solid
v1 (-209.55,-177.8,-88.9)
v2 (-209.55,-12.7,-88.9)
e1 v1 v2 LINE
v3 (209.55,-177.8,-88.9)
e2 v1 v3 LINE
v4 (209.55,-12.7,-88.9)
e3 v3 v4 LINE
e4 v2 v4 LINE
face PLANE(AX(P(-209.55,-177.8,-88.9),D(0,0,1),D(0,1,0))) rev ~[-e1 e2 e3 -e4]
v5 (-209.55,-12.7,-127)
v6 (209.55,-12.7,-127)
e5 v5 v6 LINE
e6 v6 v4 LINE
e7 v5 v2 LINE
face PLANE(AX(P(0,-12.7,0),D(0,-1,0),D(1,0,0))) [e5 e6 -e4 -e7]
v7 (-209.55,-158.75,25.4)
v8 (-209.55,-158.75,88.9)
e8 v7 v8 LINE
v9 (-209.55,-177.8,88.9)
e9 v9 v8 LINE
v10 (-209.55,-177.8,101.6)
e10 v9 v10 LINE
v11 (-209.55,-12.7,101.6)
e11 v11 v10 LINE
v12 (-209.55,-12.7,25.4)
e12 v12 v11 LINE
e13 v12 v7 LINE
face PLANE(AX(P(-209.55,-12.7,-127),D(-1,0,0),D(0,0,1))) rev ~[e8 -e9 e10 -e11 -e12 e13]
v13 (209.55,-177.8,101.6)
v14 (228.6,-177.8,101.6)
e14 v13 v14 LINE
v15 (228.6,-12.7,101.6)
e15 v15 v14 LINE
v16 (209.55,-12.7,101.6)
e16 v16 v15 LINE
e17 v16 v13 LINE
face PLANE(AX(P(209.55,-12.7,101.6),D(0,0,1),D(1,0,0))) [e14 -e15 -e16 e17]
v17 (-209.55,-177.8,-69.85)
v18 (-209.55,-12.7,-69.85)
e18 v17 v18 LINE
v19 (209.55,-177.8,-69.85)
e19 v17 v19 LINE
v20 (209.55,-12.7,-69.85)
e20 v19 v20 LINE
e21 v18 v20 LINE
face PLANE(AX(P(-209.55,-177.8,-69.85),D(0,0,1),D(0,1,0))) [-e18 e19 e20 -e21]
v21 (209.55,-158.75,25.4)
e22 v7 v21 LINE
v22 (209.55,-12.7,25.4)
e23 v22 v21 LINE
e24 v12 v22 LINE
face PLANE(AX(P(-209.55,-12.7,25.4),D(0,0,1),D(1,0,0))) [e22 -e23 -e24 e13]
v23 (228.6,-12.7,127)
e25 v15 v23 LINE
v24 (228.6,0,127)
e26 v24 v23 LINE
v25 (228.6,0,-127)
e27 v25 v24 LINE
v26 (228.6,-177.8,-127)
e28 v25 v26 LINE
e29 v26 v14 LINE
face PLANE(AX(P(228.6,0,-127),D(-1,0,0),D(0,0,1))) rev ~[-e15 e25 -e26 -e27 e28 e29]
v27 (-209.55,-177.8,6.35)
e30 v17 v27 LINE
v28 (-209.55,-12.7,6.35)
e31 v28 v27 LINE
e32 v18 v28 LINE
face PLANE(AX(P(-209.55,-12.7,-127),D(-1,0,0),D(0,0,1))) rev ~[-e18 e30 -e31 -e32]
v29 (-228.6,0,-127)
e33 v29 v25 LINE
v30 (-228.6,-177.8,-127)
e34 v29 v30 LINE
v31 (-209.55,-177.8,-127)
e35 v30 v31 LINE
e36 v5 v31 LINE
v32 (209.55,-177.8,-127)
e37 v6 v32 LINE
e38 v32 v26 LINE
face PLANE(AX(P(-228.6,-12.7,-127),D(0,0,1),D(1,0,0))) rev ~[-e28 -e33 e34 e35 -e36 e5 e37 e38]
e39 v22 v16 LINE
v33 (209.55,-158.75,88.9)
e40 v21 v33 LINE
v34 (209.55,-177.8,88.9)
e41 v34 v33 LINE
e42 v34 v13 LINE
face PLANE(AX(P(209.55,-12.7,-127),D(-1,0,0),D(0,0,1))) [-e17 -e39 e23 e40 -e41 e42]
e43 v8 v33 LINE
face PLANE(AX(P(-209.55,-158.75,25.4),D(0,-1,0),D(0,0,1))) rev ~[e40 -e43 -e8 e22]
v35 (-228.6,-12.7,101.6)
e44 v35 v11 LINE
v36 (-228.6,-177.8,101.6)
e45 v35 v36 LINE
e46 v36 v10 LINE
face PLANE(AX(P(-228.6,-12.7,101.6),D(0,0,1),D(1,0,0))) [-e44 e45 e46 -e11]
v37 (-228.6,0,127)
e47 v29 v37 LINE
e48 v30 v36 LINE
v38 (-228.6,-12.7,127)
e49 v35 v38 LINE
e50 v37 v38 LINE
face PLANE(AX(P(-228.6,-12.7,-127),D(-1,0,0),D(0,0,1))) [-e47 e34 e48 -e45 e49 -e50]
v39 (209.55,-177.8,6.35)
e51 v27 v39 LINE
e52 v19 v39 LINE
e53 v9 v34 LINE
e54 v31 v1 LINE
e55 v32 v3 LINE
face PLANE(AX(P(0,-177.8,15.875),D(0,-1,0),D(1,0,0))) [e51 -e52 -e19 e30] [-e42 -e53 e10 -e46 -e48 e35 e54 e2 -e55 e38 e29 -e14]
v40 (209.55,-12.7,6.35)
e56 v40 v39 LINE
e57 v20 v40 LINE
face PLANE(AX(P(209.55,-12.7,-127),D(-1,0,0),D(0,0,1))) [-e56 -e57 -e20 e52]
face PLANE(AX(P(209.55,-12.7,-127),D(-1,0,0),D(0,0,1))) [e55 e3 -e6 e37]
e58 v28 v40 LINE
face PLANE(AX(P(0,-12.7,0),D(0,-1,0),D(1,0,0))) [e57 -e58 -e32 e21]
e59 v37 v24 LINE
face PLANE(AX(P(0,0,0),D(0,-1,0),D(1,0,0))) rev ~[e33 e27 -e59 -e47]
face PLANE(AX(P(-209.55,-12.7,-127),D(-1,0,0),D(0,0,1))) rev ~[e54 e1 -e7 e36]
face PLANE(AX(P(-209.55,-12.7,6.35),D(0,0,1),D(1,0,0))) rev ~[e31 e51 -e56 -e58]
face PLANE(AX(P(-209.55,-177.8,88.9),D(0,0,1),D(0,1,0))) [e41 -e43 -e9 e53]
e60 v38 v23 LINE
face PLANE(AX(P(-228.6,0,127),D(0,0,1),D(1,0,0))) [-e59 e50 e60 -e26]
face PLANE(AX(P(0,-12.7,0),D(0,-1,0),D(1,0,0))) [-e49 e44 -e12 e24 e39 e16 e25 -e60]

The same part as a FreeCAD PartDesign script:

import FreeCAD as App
import Part
import Sketcher
from FreeCAD import Vector
Q = App.Units.Quantity


def add_polygon(sketch, points):
    """Adds a closed chain of lines whose ends are joined by coincident constraints."""
    first, n = sketch.GeometryCount, len(points)
    for a, b in zip(points, points[1:] + points[:1]):
        sketch.addGeometry(Part.LineSegment(App.Vector(*a, 0), App.Vector(*b, 0)), False)
    for i in range(n):
        sketch.addConstraint(Sketcher.Constraint("Coincident", first + i, 2, first + (i + 1) % n, 1))

doc = App.newDocument("Part")
params = doc.addObject("Spreadsheet::Sheet", "Params")
for row, (alias, value) in enumerate([
    ("sketch1_width", "18 in"),
    ("sketch1_height", "10 in"),
    ("pad1_length", "0.5 in"),
    ("sketch2_height", "9 in"),
    ("sketch2_width", "0.75 in"),
    ("pad2_length", "6.5 in"),
    ("sketch3_height", "2.5 in"),
    ("sketch3_width", "0.75 in"),
    ("sketch4_width", "16.5 in"),
    ("sketch4_height", "0.75 in"),
    ("pad4_length", "6.5 in"),
    ("sketch5_width", "6.5 in"),
    ("sketch5_height", "0.75 in"),
], start=1):
    params.set(f"A{row}", alias)
    params.set(f"B{row}", "=" + value)
    params.setAlias(f"B{row}", alias)

body = doc.addObject("PartDesign::Body", "Body")

# Sketch on XZ plane
sketch1 = body.newObject("Sketcher::SketchObject", "Sketch")
sketch1.AttachmentSupport = (doc.getObject("XZ_Plane"), [""])
sketch1.MapMode = "FlatFace"
add_polygon(sketch1, [(-229, 127), (-229, -127), (229, -127), (229, 127)])  # lines 0-3
sketch1.addConstraint(Sketcher.Constraint("Vertical", 0))
sketch1.addConstraint(Sketcher.Constraint("Horizontal", 1))
sketch1.addConstraint(Sketcher.Constraint("Vertical", 2))
sketch1.addConstraint(Sketcher.Constraint("Horizontal", 3))
sketch1.addConstraint(Sketcher.Constraint("Symmetric", 0, 2, 2, 2, -1, 1))
sketch1.addConstraint(Sketcher.Constraint("DistanceX", 1, 1, 1, 2, Q("18 in")))
sketch1.addConstraint(Sketcher.Constraint("DistanceY", 0, 2, 0, 1, Q("10 in")))
sketch1.setExpression("Constraints[9]", "Params.sketch1_width")
sketch1.setExpression("Constraints[10]", "Params.sketch1_height")
pad1 = body.newObject("PartDesign::Pad", "Pad")
pad1.Profile = sketch1
pad1.setExpression("Length", "Params.pad1_length")

# Sketch on XZ plane
sketch2 = body.newObject("Sketcher::SketchObject", "Sketch001")
sketch2.AttachmentSupport = (doc.getObject("XZ_Plane"), [""])
sketch2.MapMode = "FlatFace"
sketch2.AttachmentOffset = App.Placement(Vector(0, 0, 0.5 * 25.4), App.Rotation())
add_polygon(sketch2, [(-229, 102), (-229, -127), (-210, -127), (-210, 102)])  # lines 0-3
add_polygon(sketch2, [(210, 102), (210, -127), (229, -127), (229, 102)])  # lines 4-7
sketch2.addConstraint(Sketcher.Constraint("Vertical", 0))
sketch2.addConstraint(Sketcher.Constraint("Horizontal", 1))
sketch2.addConstraint(Sketcher.Constraint("Vertical", 2))
sketch2.addConstraint(Sketcher.Constraint("Horizontal", 3))
sketch2.addConstraint(Sketcher.Constraint("Vertical", 4))
sketch2.addConstraint(Sketcher.Constraint("Horizontal", 5))
sketch2.addConstraint(Sketcher.Constraint("Vertical", 6))
sketch2.addConstraint(Sketcher.Constraint("Horizontal", 7))
sketch2.addConstraint(Sketcher.Constraint("Symmetric", 1, 2, 4, 2, -2))
sketch2.addConstraint(Sketcher.Constraint("Symmetric", 3, 2, 6, 2, -2))
sketch2.addConstraint(Sketcher.Constraint("DistanceY", 0, 2, 0, 1, Q("9 in")))
sketch2.addConstraint(Sketcher.Constraint("DistanceX", 0, 2, -1, 1, Q("9 in")))
sketch2.addConstraint(Sketcher.Constraint("DistanceY", 0, 2, -1, 1, Q("5 in")))
sketch2.addConstraint(Sketcher.Constraint("DistanceX", 1, 1, 1, 2, Q("0.75 in")))
sketch2.setExpression("Constraints[18]", "Params.sketch2_height")
sketch2.setExpression("Constraints[21]", "Params.sketch2_width")
pad2 = body.newObject("PartDesign::Pad", "Pad001")
pad2.Profile = sketch2
pad2.setExpression("Length", "Params.pad2_length")

# Sketch on YZ plane
sketch3 = body.newObject("Sketcher::SketchObject", "Sketch002")
sketch3.AttachmentSupport = (doc.getObject("YZ_Plane"), [""])
sketch3.MapMode = "FlatFace"
sketch3.AttachmentOffset = App.Placement(Vector(0, 0, -8.25 * 25.4), App.Rotation())
add_polygon(sketch3, [(-178, 89), (-178, 25), (-159, 25), (-159, 89)])  # lines 0-3
sketch3.addConstraint(Sketcher.Constraint("Vertical", 0))
sketch3.addConstraint(Sketcher.Constraint("Horizontal", 1))
sketch3.addConstraint(Sketcher.Constraint("Vertical", 2))
sketch3.addConstraint(Sketcher.Constraint("Horizontal", 3))
sketch3.addConstraint(Sketcher.Constraint("DistanceY", 0, 2, 0, 1, Q("2.5 in")))
sketch3.addConstraint(Sketcher.Constraint("DistanceX", 0, 2, -1, 1, Q("7 in")))
sketch3.addConstraint(Sketcher.Constraint("DistanceY", -1, 1, 0, 2, Q("1 in")))
sketch3.addConstraint(Sketcher.Constraint("DistanceX", 1, 1, 1, 2, Q("0.75 in")))
sketch3.setExpression("Constraints[8]", "Params.sketch3_height")
sketch3.setExpression("Constraints[11]", "Params.sketch3_width")
pad3 = body.newObject("PartDesign::Pad", "Pad002")
pad3.Profile = sketch3
pad3.Type = "UpToLast"

# Sketch on XZ plane
sketch4 = body.newObject("Sketcher::SketchObject", "Sketch003")
sketch4.AttachmentSupport = (doc.getObject("XZ_Plane"), [""])
sketch4.MapMode = "FlatFace"
sketch4.AttachmentOffset = App.Placement(Vector(0, 0, 0.5 * 25.4), App.Rotation())
add_polygon(sketch4, [(-210, 25), (-210, 6), (210, 6), (210, 25)])  # lines 0-3
sketch4.addConstraint(Sketcher.Constraint("Vertical", 0))
sketch4.addConstraint(Sketcher.Constraint("Horizontal", 1))
sketch4.addConstraint(Sketcher.Constraint("Vertical", 2))
sketch4.addConstraint(Sketcher.Constraint("Horizontal", 3))
sketch4.addConstraint(Sketcher.Constraint("DistanceX", 1, 1, 1, 2, Q("16.5 in")))
sketch4.addConstraint(Sketcher.Constraint("DistanceY", -1, 1, 2, 2, Q("1 in")))
sketch4.addConstraint(Sketcher.Constraint("DistanceY", 0, 2, 0, 1, Q("0.75 in")))
sketch4.addConstraint(Sketcher.Constraint("DistanceX", 0, 2, -1, 1, Q("8.25 in")))
sketch4.setExpression("Constraints[8]", "Params.sketch4_width")
sketch4.setExpression("Constraints[10]", "Params.sketch4_height")
pad4 = body.newObject("PartDesign::Pad", "Pad003")
pad4.Profile = sketch4
pad4.setExpression("Length", "Params.pad4_length")

# Sketch on YZ plane
sketch5 = body.newObject("Sketcher::SketchObject", "Sketch004")
sketch5.AttachmentSupport = (doc.getObject("YZ_Plane"), [""])
sketch5.MapMode = "FlatFace"
sketch5.AttachmentOffset = App.Placement(Vector(0, 0, -8.25 * 25.4), App.Rotation())
add_polygon(sketch5, [(-178, -70), (-178, -89), (-13, -89), (-13, -70)])  # lines 0-3
sketch5.addConstraint(Sketcher.Constraint("Vertical", 0))
sketch5.addConstraint(Sketcher.Constraint("Horizontal", 1))
sketch5.addConstraint(Sketcher.Constraint("Vertical", 2))
sketch5.addConstraint(Sketcher.Constraint("Horizontal", 3))
sketch5.addConstraint(Sketcher.Constraint("DistanceX", 1, 1, 1, 2, Q("6.5 in")))
sketch5.addConstraint(Sketcher.Constraint("DistanceX", 0, 2, -1, 1, Q("7 in")))
sketch5.addConstraint(Sketcher.Constraint("DistanceY", 0, 2, 0, 1, Q("0.75 in")))
sketch5.addConstraint(Sketcher.Constraint("DistanceY", 0, 2, -1, 1, Q("3.5 in")))
sketch5.setExpression("Constraints[8]", "Params.sketch5_width")
sketch5.setExpression("Constraints[10]", "Params.sketch5_height")
pad5 = body.newObject("PartDesign::Pad", "Pad004")
pad5.Profile = sketch5
pad5.Type = "UpToLast"

doc.recompute()
